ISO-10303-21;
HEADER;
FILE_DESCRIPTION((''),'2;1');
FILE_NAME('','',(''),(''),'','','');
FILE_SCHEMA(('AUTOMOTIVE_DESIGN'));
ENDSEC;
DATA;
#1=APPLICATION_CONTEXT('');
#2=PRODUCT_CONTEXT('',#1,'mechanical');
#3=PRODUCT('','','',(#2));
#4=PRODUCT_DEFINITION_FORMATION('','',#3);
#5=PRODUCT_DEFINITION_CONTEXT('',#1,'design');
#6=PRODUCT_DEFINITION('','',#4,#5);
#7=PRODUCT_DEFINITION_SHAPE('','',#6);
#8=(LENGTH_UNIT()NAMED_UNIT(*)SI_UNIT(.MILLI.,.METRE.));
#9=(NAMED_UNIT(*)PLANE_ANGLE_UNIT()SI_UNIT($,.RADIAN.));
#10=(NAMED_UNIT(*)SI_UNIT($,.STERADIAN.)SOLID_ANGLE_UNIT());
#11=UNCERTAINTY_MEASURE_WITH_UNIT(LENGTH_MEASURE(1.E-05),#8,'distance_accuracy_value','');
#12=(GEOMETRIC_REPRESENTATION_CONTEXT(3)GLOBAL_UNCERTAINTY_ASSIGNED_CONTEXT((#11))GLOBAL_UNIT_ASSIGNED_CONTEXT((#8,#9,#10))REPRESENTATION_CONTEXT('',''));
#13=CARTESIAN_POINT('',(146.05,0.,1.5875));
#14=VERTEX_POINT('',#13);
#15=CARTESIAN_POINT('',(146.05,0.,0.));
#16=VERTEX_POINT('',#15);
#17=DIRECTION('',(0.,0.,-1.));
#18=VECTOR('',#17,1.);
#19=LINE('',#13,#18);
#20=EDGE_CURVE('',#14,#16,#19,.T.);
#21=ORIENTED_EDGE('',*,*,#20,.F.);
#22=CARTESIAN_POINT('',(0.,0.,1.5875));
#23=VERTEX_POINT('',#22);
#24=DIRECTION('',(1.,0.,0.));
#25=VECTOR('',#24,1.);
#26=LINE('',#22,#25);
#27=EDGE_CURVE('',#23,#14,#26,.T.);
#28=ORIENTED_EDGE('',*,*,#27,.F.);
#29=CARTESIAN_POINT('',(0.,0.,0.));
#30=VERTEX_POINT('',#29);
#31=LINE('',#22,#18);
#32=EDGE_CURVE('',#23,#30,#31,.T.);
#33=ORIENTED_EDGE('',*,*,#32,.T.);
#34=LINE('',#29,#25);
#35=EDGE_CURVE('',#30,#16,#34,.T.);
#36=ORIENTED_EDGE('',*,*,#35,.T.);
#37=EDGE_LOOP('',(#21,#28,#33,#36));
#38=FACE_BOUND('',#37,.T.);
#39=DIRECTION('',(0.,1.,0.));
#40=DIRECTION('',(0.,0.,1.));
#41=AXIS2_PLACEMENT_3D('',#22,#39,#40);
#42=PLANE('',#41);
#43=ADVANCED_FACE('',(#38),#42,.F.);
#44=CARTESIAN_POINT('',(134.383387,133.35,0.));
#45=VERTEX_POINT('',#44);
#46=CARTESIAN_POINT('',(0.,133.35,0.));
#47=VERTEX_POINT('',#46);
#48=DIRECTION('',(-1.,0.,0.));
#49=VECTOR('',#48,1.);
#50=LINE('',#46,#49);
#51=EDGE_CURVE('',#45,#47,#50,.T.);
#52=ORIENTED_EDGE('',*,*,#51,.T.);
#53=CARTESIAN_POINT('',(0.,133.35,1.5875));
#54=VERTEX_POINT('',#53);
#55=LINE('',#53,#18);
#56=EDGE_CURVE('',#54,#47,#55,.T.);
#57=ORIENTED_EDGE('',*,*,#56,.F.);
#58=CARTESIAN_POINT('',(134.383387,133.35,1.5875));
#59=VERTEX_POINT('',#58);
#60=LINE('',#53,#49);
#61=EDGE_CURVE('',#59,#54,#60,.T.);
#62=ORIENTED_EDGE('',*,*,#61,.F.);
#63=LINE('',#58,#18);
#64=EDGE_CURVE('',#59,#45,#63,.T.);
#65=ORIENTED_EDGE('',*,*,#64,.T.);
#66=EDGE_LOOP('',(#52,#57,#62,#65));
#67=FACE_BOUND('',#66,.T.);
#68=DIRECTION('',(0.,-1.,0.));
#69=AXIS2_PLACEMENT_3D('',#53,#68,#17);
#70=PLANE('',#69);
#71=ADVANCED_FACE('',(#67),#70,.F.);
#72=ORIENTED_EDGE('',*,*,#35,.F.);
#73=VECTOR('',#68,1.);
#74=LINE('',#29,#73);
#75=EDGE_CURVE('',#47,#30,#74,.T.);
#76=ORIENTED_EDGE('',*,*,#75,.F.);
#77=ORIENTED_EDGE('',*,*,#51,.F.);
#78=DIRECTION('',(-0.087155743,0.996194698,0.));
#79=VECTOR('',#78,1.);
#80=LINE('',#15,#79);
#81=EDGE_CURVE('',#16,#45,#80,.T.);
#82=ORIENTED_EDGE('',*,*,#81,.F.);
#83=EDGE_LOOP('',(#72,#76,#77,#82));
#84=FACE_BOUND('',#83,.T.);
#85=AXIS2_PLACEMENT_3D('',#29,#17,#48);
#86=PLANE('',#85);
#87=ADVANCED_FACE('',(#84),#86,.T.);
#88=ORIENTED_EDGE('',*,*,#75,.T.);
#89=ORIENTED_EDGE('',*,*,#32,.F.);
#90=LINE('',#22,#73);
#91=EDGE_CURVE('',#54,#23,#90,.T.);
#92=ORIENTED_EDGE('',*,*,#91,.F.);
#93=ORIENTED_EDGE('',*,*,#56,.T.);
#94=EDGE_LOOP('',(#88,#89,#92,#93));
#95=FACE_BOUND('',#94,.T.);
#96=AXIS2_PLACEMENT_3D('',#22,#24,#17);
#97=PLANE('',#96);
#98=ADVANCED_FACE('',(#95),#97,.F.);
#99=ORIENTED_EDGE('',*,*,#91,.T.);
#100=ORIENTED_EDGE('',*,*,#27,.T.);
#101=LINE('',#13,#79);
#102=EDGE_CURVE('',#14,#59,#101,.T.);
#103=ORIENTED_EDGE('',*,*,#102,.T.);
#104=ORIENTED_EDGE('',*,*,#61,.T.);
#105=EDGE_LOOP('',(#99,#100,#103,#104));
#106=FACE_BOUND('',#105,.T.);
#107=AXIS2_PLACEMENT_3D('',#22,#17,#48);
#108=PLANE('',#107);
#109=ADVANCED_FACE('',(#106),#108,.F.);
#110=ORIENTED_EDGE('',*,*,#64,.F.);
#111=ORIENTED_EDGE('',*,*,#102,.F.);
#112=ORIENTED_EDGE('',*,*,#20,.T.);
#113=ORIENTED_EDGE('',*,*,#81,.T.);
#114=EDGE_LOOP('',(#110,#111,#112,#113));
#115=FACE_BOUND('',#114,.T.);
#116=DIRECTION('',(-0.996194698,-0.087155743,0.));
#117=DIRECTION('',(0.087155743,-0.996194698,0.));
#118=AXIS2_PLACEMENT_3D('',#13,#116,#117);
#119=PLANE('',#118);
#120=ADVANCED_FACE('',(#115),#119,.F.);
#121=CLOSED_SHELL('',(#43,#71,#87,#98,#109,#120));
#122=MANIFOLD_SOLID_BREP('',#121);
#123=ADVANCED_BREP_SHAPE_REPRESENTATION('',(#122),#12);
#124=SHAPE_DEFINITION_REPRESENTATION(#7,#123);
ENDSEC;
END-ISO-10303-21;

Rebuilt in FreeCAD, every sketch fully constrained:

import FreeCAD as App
import Part
import Sketcher
from FreeCAD import Vector
Q = App.Units.Quantity


def add_polygon(sketch, points):
    """Adds a closed chain of lines whose ends are joined by coincident constraints."""
    first, n = sketch.GeometryCount, len(points)
    for a, b in zip(points, points[1:] + points[:1]):
        sketch.addGeometry(Part.LineSegment(App.Vector(*a, 0), App.Vector(*b, 0)), False)
    for i in range(n):
        sketch.addConstraint(Sketcher.Constraint("Coincident", first + i, 2, first + (i + 1) % n, 1))

doc = App.newDocument("Part")
body = doc.addObject("PartDesign::Body", "Body")

sketch1 = doc.addObject("Sketcher::SketchObject", "Sketch")
body.addObject(sketch1)
sketch1.AttachmentSupport = (doc.XY_Plane, [""])
sketch1.MapMode = "FlatFace"
add_polygon(sketch1, [(146.05, 0), (134.383387, 133.35), (0, 133.35), (0, 0)])
sketch1.addConstraint([
    Sketcher.Constraint("Horizontal", 1),
    Sketcher.Constraint("Vertical", 2),
    Sketcher.Constraint("Horizontal", 3),
    Sketcher.Constraint("Coincident", 2, 2, -1, 1),
    Sketcher.Constraint("Angle", 0, Q("95 deg")),
    Sketcher.Constraint("DistanceX", 3, 1, 3, 2, Q("5.75 in")),
    Sketcher.Constraint("DistanceY", 2, 2, 2, 1, Q("5.25 in")),
])
pad1 = doc.addObject("PartDesign::Pad", "Pad")
body.addObject(pad1)
pad1.Profile = sketch1
pad1.Length = Q("0.0625 in")

doc.recompute()
